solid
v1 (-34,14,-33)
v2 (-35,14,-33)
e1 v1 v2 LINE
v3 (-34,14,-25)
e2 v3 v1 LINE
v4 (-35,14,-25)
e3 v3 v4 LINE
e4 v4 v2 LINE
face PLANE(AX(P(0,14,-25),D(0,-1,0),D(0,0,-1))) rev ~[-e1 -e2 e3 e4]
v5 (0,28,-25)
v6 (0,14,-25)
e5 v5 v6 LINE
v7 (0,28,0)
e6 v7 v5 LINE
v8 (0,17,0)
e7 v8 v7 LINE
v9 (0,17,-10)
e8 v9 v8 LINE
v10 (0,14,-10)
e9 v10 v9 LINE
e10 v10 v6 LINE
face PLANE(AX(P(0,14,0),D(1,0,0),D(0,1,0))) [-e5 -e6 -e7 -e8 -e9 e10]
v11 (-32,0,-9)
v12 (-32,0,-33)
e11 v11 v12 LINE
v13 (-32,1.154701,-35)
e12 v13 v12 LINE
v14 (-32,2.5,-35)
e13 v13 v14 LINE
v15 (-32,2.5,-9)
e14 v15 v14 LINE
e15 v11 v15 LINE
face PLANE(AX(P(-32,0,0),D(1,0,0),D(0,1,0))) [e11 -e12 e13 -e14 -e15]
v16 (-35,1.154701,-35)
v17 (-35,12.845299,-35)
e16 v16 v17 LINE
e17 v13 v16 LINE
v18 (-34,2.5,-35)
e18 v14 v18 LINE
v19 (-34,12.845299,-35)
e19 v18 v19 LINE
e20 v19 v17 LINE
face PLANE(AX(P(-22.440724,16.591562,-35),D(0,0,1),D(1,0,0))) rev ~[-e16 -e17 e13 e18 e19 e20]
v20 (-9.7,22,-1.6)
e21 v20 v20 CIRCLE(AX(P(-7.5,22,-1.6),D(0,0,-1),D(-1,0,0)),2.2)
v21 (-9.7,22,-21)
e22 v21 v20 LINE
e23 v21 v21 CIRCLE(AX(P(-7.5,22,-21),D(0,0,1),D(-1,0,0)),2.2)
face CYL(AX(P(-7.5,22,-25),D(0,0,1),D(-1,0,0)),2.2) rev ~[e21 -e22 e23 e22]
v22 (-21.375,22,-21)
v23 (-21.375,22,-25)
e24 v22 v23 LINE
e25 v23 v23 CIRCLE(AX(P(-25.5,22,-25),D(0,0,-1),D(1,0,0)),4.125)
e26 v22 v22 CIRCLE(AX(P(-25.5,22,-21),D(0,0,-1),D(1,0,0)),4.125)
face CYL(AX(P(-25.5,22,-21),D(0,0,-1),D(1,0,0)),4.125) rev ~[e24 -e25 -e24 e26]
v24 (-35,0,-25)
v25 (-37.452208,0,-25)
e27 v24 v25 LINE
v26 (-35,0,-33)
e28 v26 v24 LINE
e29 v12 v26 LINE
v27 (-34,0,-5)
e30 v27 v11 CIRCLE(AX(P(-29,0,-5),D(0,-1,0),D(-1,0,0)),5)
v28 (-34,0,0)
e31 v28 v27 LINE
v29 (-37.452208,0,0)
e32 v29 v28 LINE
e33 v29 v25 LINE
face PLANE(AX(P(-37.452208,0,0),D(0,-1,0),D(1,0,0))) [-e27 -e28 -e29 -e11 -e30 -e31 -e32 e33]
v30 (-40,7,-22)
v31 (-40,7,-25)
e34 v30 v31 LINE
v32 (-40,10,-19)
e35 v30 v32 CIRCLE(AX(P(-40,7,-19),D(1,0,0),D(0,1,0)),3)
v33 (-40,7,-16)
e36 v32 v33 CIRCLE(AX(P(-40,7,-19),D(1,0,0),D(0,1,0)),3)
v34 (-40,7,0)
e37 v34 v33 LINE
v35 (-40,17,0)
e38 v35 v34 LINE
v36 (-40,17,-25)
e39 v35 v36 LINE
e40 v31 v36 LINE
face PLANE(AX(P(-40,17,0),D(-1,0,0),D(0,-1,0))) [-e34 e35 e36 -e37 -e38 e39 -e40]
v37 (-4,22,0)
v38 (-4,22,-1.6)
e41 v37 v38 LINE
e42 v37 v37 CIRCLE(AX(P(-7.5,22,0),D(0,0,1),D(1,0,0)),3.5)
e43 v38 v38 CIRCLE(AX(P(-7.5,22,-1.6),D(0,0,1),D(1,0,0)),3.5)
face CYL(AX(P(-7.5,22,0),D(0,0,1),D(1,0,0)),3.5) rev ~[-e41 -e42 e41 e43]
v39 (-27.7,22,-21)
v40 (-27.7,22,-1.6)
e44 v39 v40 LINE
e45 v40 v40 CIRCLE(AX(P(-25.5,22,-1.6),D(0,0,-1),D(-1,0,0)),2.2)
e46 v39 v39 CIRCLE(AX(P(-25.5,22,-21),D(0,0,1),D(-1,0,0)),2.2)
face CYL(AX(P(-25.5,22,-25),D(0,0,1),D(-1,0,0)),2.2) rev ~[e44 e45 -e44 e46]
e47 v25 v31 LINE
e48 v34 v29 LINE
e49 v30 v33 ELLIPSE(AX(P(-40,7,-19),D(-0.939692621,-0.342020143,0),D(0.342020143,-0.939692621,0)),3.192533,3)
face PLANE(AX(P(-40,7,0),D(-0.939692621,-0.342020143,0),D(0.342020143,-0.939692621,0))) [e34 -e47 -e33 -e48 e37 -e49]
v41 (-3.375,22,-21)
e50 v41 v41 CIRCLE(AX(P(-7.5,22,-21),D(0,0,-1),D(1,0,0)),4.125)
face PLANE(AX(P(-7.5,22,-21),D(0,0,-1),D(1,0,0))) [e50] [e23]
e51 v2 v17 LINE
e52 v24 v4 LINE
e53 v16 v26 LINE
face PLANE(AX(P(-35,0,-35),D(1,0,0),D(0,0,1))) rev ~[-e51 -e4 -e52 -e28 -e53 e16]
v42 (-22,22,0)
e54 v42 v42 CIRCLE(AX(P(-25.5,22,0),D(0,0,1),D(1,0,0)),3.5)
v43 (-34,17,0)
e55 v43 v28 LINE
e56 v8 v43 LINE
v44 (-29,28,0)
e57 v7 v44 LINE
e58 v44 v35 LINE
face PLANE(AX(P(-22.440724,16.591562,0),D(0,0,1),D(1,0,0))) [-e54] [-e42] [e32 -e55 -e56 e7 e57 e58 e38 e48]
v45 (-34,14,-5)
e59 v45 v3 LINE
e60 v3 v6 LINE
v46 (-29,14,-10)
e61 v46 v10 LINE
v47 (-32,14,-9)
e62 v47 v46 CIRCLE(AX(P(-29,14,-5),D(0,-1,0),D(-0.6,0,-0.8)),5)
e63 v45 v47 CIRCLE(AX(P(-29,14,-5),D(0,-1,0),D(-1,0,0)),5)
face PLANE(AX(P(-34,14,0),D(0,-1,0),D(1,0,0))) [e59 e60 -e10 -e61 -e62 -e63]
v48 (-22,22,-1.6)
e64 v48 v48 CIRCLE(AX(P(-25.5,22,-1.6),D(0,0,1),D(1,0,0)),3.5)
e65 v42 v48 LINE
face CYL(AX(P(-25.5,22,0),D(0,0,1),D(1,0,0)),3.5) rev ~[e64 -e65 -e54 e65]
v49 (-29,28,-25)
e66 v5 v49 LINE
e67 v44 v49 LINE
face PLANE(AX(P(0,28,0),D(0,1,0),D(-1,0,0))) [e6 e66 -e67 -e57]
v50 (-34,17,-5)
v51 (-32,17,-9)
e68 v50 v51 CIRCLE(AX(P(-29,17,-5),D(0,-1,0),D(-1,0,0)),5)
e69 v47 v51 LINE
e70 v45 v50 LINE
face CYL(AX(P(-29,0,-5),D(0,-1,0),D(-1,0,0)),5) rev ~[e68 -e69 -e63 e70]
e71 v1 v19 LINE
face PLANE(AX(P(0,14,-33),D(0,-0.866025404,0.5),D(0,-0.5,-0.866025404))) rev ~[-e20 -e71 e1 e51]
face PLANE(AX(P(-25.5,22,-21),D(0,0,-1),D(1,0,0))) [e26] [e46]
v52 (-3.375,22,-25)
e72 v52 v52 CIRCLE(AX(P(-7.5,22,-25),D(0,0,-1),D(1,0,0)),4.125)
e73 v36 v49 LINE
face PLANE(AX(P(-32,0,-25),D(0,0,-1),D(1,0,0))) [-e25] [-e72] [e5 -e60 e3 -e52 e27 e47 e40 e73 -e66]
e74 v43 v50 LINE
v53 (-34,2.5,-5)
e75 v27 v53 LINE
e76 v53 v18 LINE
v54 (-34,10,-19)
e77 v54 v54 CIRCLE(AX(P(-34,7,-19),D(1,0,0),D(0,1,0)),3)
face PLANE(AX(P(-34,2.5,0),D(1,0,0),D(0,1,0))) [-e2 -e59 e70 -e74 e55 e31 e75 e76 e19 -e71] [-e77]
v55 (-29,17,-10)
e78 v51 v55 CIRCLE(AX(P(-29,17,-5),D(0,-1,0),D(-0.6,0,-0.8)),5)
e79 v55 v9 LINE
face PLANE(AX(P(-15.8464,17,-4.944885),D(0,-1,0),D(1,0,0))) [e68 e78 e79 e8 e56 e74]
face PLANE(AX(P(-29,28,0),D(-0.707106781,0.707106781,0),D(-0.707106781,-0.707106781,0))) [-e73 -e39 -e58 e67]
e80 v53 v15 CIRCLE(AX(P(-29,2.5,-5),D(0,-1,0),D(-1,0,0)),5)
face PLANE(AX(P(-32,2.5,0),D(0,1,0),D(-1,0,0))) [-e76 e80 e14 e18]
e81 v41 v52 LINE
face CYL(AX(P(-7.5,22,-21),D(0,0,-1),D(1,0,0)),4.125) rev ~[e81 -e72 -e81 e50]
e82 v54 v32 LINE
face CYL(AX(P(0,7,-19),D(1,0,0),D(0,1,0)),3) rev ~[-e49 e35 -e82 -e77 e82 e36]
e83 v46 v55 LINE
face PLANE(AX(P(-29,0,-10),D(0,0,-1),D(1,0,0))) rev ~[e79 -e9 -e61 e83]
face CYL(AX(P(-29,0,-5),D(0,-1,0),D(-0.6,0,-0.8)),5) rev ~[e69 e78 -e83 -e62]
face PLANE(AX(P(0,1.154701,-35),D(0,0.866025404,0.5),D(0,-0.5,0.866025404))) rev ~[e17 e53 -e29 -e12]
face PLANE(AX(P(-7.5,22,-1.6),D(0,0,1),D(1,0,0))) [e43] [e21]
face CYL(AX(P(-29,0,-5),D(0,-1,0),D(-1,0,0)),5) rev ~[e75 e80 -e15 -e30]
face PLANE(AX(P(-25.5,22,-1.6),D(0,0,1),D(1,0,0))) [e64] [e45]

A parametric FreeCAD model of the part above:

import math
import FreeCAD as App
import Part
import Sketcher
Q = App.Units.Quantity

doc = App.newDocument("Part")
body = doc.addObject("PartDesign::Body", "Body")

sketch1 = body.newObject("Sketcher::SketchObject", "Sketch")
sketch1.AttachmentSupport = (doc.getObject("XY_Plane"), [""])
sketch1.MapMode = "FlatFace"
sketch1.addGeometry(Part.LineSegment(App.Vector(-34, 14, 0), App.Vector(0, 14, 0)), False)
sketch1.addGeometry(Part.LineSegment(App.Vector(0, 14, 0), App.Vector(0, 28, 0)), False)
sketch1.addGeometry(Part.LineSegment(App.Vector(0, 28, 0), App.Vector(-29, 28, 0)), False)
sketch1.addGeometry(Part.LineSegment(App.Vector(-29, 28, 0), App.Vector(-40, 17, 0)), False)
sketch1.addGeometry(Part.LineSegment(App.Vector(-40, 17, 0), App.Vector(-40, 7, 0)), False)
sketch1.addGeometry(Part.LineSegment(App.Vector(-40, 7, 0), App.Vector(-37.5, 0, 0)), False)
sketch1.addGeometry(Part.LineSegment(App.Vector(-37.5, 0, 0), App.Vector(-32, 0, 0)), False)
sketch1.addGeometry(Part.LineSegment(App.Vector(-32, 0, 0), App.Vector(-32, 2.5, 0)), False)
sketch1.addGeometry(Part.LineSegment(App.Vector(-32, 2.5, 0), App.Vector(-34, 2.5, 0)), False)
sketch1.addGeometry(Part.LineSegment(App.Vector(-34, 2.5, 0), App.Vector(-34, 14, 0)), False)
sketch1.addConstraint(Sketcher.Constraint("Coincident", 0, 2, 1, 1))
sketch1.addConstraint(Sketcher.Constraint("Coincident", 1, 2, 2, 1))
sketch1.addConstraint(Sketcher.Constraint("Coincident", 2, 2, 3, 1))
sketch1.addConstraint(Sketcher.Constraint("Coincident", 3, 2, 4, 1))
sketch1.addConstraint(Sketcher.Constraint("Coincident", 4, 2, 5, 1))
sketch1.addConstraint(Sketcher.Constraint("Coincident", 5, 2, 6, 1))
sketch1.addConstraint(Sketcher.Constraint("Coincident", 6, 2, 7, 1))
sketch1.addConstraint(Sketcher.Constraint("Coincident", 7, 2, 8, 1))
sketch1.addConstraint(Sketcher.Constraint("Coincident", 8, 2, 9, 1))
sketch1.addConstraint(Sketcher.Constraint("Coincident", 9, 2, 0, 1))
sketch1.addConstraint(Sketcher.Constraint("Horizontal", 0))
sketch1.addConstraint(Sketcher.Constraint("Vertical", 1))
sketch1.addConstraint(Sketcher.Constraint("Horizontal", 2))
sketch1.addConstraint(Sketcher.Constraint("Vertical", 4))
sketch1.addConstraint(Sketcher.Constraint("Horizontal", 6))
sketch1.addConstraint(Sketcher.Constraint("Vertical", 7))
sketch1.addConstraint(Sketcher.Constraint("Horizontal", 8))
sketch1.addConstraint(Sketcher.Constraint("Vertical", 9))
sketch1.addConstraint(Sketcher.Constraint("PointOnObject", 0, 2, -2))
sketch1.addConstraint(Sketcher.Constraint("PointOnObject", 5, 2, -1))
sketch1.addConstraint(Sketcher.Constraint("DistanceX", 0, 1, 0, 2, 34.0))
sketch1.addConstraint(Sketcher.Constraint("DistanceX", 2, 2, 2, 1, 29.0))
sketch1.addConstraint(Sketcher.Constraint("DistanceX", 8, 2, 8, 1, 2.0))
sketch1.addConstraint(Sketcher.Constraint("DistanceY", 1, 1, 1, 2, 14.0))
sketch1.addConstraint(Sketcher.Constraint("DistanceY", 4, 2, 4, 1, 10.0))
sketch1.addConstraint(Sketcher.Constraint("Angle", 3, Q("-135 deg")))
sketch1.addConstraint(Sketcher.Constraint("Angle", 5, Q("-70 deg")))
sketch1.addConstraint(Sketcher.Constraint("DistanceY", 7, 1, 7, 2, 2.5))
sketch1.addConstraint(Sketcher.Constraint("DistanceY", 9, 1, 9, 2, 11.5))
sketch1.addConstraint(Sketcher.Constraint("DistanceX", 3, 2, -1, 1, 40.0))
pad1 = body.newObject("PartDesign::Pad", "Pad")
pad1.Profile = sketch1
pad1.Length = 35
pad1.Reversed = True

sketch2 = body.newObject("Sketcher::SketchObject", "Sketch001")
sketch2.AttachmentSupport = (doc.getObject("XZ_Plane"), [""])
sketch2.MapMode = "FlatFace"
sketch2.addGeometry(Part.LineSegment(App.Vector(0, 0, 0), App.Vector(-34, 0, 0)), False)
sketch2.addGeometry(Part.LineSegment(App.Vector(-34, 0, 0), App.Vector(-34, -5, 0)), False)
sketch2.addGeometry(Part.ArcOfCircle(Part.Circle(App.Vector(-29, -5, 0), App.Vector(0, 0, 1), 5), math.radians(180), math.radians(233)), False)
sketch2.addGeometry(Part.ArcOfCircle(Part.Circle(App.Vector(-29, -5, 0), App.Vector(0, 0, 1), 5), math.radians(-127), math.radians(-90)), False)
sketch2.addGeometry(Part.LineSegment(App.Vector(-29, -10, 0), App.Vector(0, -10, 0)), False)
sketch2.addGeometry(Part.LineSegment(App.Vector(0, -10, 0), App.Vector(0, 0, 0)), False)
sketch2.addConstraint(Sketcher.Constraint("Coincident", 0, 2, 1, 1))
sketch2.addConstraint(Sketcher.Constraint("Tangent", 1, 2, 2, 1))
sketch2.addConstraint(Sketcher.Constraint("Tangent", 2, 2, 3, 1))
sketch2.addConstraint(Sketcher.Constraint("Tangent", 3, 2, 4, 1))
sketch2.addConstraint(Sketcher.Constraint("Coincident", 4, 2, 5, 1))
sketch2.addConstraint(Sketcher.Constraint("Coincident", 5, 2, 0, 1))
sketch2.addConstraint(Sketcher.Constraint("Horizontal", 0))
sketch2.addConstraint(Sketcher.Constraint("Vertical", 1))
sketch2.addConstraint(Sketcher.Constraint("Horizontal", 4))
sketch2.addConstraint(Sketcher.Constraint("Vertical", 5))
sketch2.addConstraint(Sketcher.Constraint("Coincident", 5, 2, -1, 1))
sketch2.addConstraint(Sketcher.Constraint("Equal", 2, 3))
sketch2.addConstraint(Sketcher.Constraint("Radius", 2, 5.0))
sketch2.addConstraint(Sketcher.Constraint("DistanceX", 0, 2, 0, 1, 34.0))
sketch2.addConstraint(Sketcher.Constraint("DistanceY", 1, 2, 1, 1, 5.0))
sketch2.addConstraint(Sketcher.Constraint("DistanceX", 2, 2, -1, 1, 32.0))
pocket1 = body.newObject("PartDesign::Pocket", "Pocket")
pocket1.Profile = sketch2
pocket1.Length = 17

sketch3 = body.newObject("Sketcher::SketchObject", "Sketch002")
sketch3.AttachmentSupport = (doc.getObject("XZ_Plane"), [""])
sketch3.MapMode = "FlatFace"
sketch3.addGeometry(Part.LineSegment(App.Vector(-35, -35, 0), App.Vector(-35, -25, 0)), False)
sketch3.addGeometry(Part.LineSegment(App.Vector(-35, -25, 0), App.Vector(-40, -25, 0)), False)
sketch3.addGeometry(Part.LineSegment(App.Vector(-40, -25, 0), App.Vector(-40, -35, 0)), False)
sketch3.addGeometry(Part.LineSegment(App.Vector(-40, -35, 0), App.Vector(-35, -35, 0)), False)
sketch3.addGeometry(Part.LineSegment(App.Vector(-32, -25, 0), App.Vector(-32, -35, 0)), False)
sketch3.addGeometry(Part.LineSegment(App.Vector(-32, -35, 0), App.Vector(0, -35, 0)), False)
sketch3.addGeometry(Part.LineSegment(App.Vector(0, -35, 0), App.Vector(0, -25, 0)), False)
sketch3.addGeometry(Part.LineSegment(App.Vector(0, -25, 0), App.Vector(-32, -25, 0)), False)
sketch3.addConstraint(Sketcher.Constraint("Coincident", 0, 2, 1, 1))
sketch3.addConstraint(Sketcher.Constraint("Coincident", 1, 2, 2, 1))
sketch3.addConstraint(Sketcher.Constraint("Coincident", 2, 2, 3, 1))
sketch3.addConstraint(Sketcher.Constraint("Coincident", 3, 2, 0, 1))
sketch3.addConstraint(Sketcher.Constraint("Coincident", 4, 2, 5, 1))
sketch3.addConstraint(Sketcher.Constraint("Coincident", 5, 2, 6, 1))
sketch3.addConstraint(Sketcher.Constraint("Coincident", 6, 2, 7, 1))
sketch3.addConstraint(Sketcher.Constraint("Coincident", 7, 2, 4, 1))
sketch3.addConstraint(Sketcher.Constraint("Vertical", 0))
sketch3.addConstraint(Sketcher.Constraint("Horizontal", 1))
sketch3.addConstraint(Sketcher.Constraint("Vertical", 2))
sketch3.addConstraint(Sketcher.Constraint("Horizontal", 3))
sketch3.addConstraint(Sketcher.Constraint("Vertical", 4))
sketch3.addConstraint(Sketcher.Constraint("Horizontal", 5))
sketch3.addConstraint(Sketcher.Constraint("Vertical", 6))
sketch3.addConstraint(Sketcher.Constraint("Horizontal", 7))
sketch3.addConstraint(Sketcher.Constraint("PointOnObject", 5, 2, -2))
sketch3.addConstraint(Sketcher.Constraint("Horizontal", 3, 2, 4, 2))
sketch3.addConstraint(Sketcher.Constraint("Horizontal", 1, 2, 6, 2))
sketch3.addConstraint(Sketcher.Constraint("DistanceX", 1, 2, 1, 1, 5.0))
sketch3.addConstraint(Sketcher.Constraint("DistanceX", 5, 1, 5, 2, 32.0))
sketch3.addConstraint(Sketcher.Constraint("DistanceY", 0, 1, 0, 2, 10.0))
sketch3.addConstraint(Sketcher.Constraint("DistanceX", 0, 2, -1, 1, 35.0))
sketch3.addConstraint(Sketcher.Constraint("DistanceY", 0, 2, -1, 1, 25.0))
pocket2 = body.newObject("PartDesign::Pocket", "Pocket001")
pocket2.Profile = sketch3
pocket2.Type = "ThroughAll"

sketch4 = body.newObject("Sketcher::SketchObject", "Sketch003")
sketch4.AttachmentSupport = (doc.getObject("XZ_Plane"), [""])
sketch4.MapMode = "FlatFace"
sketch4.AttachmentOffset = App.Placement(App.Vector(0, 0, -28), App.Rotation())
sketch4.addGeometry(Part.LineSegment(App.Vector(-32, -25, 0), App.Vector(-32, -35, 0)), False)
sketch4.addGeometry(Part.LineSegment(App.Vector(-32, -35, 0), App.Vector(-34, -35, 0)), False)
sketch4.addGeometry(Part.LineSegment(App.Vector(-34, -35, 0), App.Vector(-34, -25, 0)), False)
sketch4.addGeometry(Part.LineSegment(App.Vector(-34, -25, 0), App.Vector(-32, -25, 0)), False)
sketch4.addConstraint(Sketcher.Constraint("Coincident", 0, 2, 1, 1))
sketch4.addConstraint(Sketcher.Constraint("Coincident", 1, 2, 2, 1))
sketch4.addConstraint(Sketcher.Constraint("Coincident", 2, 2, 3, 1))
sketch4.addConstraint(Sketcher.Constraint("Coincident", 3, 2, 0, 1))
sketch4.addConstraint(Sketcher.Constraint("Vertical", 0))
sketch4.addConstraint(Sketcher.Constraint("Horizontal", 1))
sketch4.addConstraint(Sketcher.Constraint("Vertical", 2))
sketch4.addConstraint(Sketcher.Constraint("Horizontal", 3))
sketch4.addConstraint(Sketcher.Constraint("DistanceX", 1, 2, 1, 1, 2.0))
sketch4.addConstraint(Sketcher.Constraint("DistanceY", 0, 2, 0, 1, 10.0))
sketch4.addConstraint(Sketcher.Constraint("DistanceX", 0, 2, -1, 1, 32.0))
sketch4.addConstraint(Sketcher.Constraint("DistanceY", 0, 2, -1, 1, 35.0))
pocket3 = body.newObject("PartDesign::Pocket", "Pocket002")
pocket3.Profile = sketch4
pocket3.Length = 14
pocket3.Reversed = True

sketch5 = body.newObject("Sketcher::SketchObject", "Sketch004")
sketch5.AttachmentSupport = (doc.getObject("YZ_Plane"), [""])
sketch5.MapMode = "FlatFace"
sketch5.addGeometry(Part.LineSegment(App.Vector(23, -35, 0), App.Vector(23, -25, 0)), False)
sketch5.addGeometry(Part.LineSegment(App.Vector(23, -25, 0), App.Vector(14, -25, 0)), False)
sketch5.addGeometry(Part.LineSegment(App.Vector(14, -25, 0), App.Vector(14, -33, 0)), False)
sketch5.addGeometry(Part.LineSegment(App.Vector(14, -33, 0), App.Vector(12.8, -35, 0)), False)
sketch5.addGeometry(Part.LineSegment(App.Vector(12.8, -35, 0), App.Vector(23, -35, 0)), False)
sketch5.addGeometry(Part.Circle(App.Vector(7, -19, 0), App.Vector(0, 0, 1), 3), False)
sketch5.addGeometry(Part.LineSegment(App.Vector(1.2, -35, 0), App.Vector(0, -33, 0)), False)
sketch5.addGeometry(Part.LineSegment(App.Vector(0, -33, 0), App.Vector(0, -35, 0)), False)
sketch5.addGeometry(Part.LineSegment(App.Vector(0, -35, 0), App.Vector(1.2, -35, 0)), False)
sketch5.addConstraint(Sketcher.Constraint("Coincident", 0, 2, 1, 1))
sketch5.addConstraint(Sketcher.Constraint("Coincident", 1, 2, 2, 1))
sketch5.addConstraint(Sketcher.Constraint("Coincident", 2, 2, 3, 1))
sketch5.addConstraint(Sketcher.Constraint("Coincident", 3, 2, 4, 1))
sketch5.addConstraint(Sketcher.Constraint("Coincident", 4, 2, 0, 1))
sketch5.addConstraint(Sketcher.Constraint("Coincident", 6, 2, 7, 1))
sketch5.addConstraint(Sketcher.Constraint("Coincident", 7, 2, 8, 1))
sketch5.addConstraint(Sketcher.Constraint("Coincident", 8, 2, 6, 1))
sketch5.addConstraint(Sketcher.Constraint("Vertical", 0))
sketch5.addConstraint(Sketcher.Constraint("Horizontal", 1))
sketch5.addConstraint(Sketcher.Constraint("Vertical", 2))
sketch5.addConstraint(Sketcher.Constraint("Horizontal", 4))
sketch5.addConstraint(Sketcher.Constraint("Vertical", 7))
sketch5.addConstraint(Sketcher.Constraint("Horizontal", 8))
sketch5.addConstraint(Sketcher.Constraint("PointOnObject", 6, 2, -2))
sketch5.addConstraint(Sketcher.Constraint("Horizontal", 2, 2, 6, 2))
sketch5.addConstraint(Sketcher.Constraint("Horizontal", 4, 2, 7, 2))
sketch5.addConstraint(Sketcher.Constraint("Equal", 3, 6))
sketch5.addConstraint(Sketcher.Constraint("Diameter", 5, 6.0))
sketch5.addConstraint(Sketcher.Constraint("DistanceX", 1, 2, 1, 1, 9.0))
sketch5.addConstraint(Sketcher.Constraint("DistanceY", 0, 1, 0, 2, 10.0))
sketch5.addConstraint(Sketcher.Constraint("DistanceY", 2, 2, 2, 1, 8.0))
sketch5.addConstraint(Sketcher.Constraint("Angle", 3, Q("-120 deg")))
sketch5.addConstraint(Sketcher.Constraint("DistanceX", -1, 1, 5, 3, 7.0))
sketch5.addConstraint(Sketcher.Constraint("DistanceY", 5, 3, -1, 1, 19.0))
sketch5.addConstraint(Sketcher.Constraint("DistanceX", -1, 1, 0, 2, 23.0))
sketch5.addConstraint(Sketcher.Constraint("DistanceY", 0, 2, -1, 1, 25.0))
pocket4 = body.newObject("PartDesign::Pocket", "Pocket003")
pocket4.Profile = sketch5
pocket4.Type = "ThroughAll"

sketch6 = body.newObject("Sketcher::SketchObject", "Sketch005")
sketch6.AttachmentSupport = (doc.getObject("XY_Plane"), [""])
sketch6.MapMode = "FlatFace"
sketch6.AttachmentOffset = App.Placement(App.Vector(0, 0, -25), App.Rotation())
sketch6.addGeometry(Part.Circle(App.Vector(-25.5, 22, 0), App.Vector(0, 0, 1), 2.2), False)
sketch6.addGeometry(Part.Circle(App.Vector(-7.5, 22, 0), App.Vector(0, 0, 1), 2.2), False)
sketch6.addConstraint(Sketcher.Constraint("Equal", 0, 1))
sketch6.addConstraint(Sketcher.Constraint("Horizontal", 0, 3, 1, 3))
sketch6.addConstraint(Sketcher.Constraint("Diameter", 0, 4.4))
sketch6.addConstraint(Sketcher.Constraint("DistanceY", -1, 1, 0, 3, 22.0))
sketch6.addConstraint(Sketcher.Constraint("DistanceX", 0, 3, 1, 3, 18.0))
sketch6.addConstraint(Sketcher.Constraint("DistanceX", 0, 3, -1, 1, 25.5))
doc.recompute()
hole = body.newObject("PartDesign::Hole", "Hole")
hole.Profile = sketch6
hole.ThreadType = "None"
hole.Diameter = 4.4
hole.DepthType = "ThroughAll"
hole.HoleCutType = "Counterbore"
hole.HoleCutDiameter = 8.25
hole.HoleCutDepth = 4
hole.Reversed = True

sketch7 = body.newObject("Sketcher::SketchObject", "Sketch006")
sketch7.AttachmentSupport = (doc.getObject("XY_Plane"), [""])
sketch7.MapMode = "FlatFace"
sketch7.addGeometry(Part.Circle(App.Vector(-25.5, 22, 0), App.Vector(0, 0, 1), 3.5), False)
sketch7.addGeometry(Part.Circle(App.Vector(-25.5, 22, 0), App.Vector(0, 0, 1), 2.2), False)
sketch7.addGeometry(Part.Circle(App.Vector(-7.5, 22, 0), App.Vector(0, 0, 1), 3.5), False)
sketch7.addGeometry(Part.Circle(App.Vector(-7.5, 22, 0), App.Vector(0, 0, 1), 2.2), False)
sketch7.addConstraint(Sketcher.Constraint("Coincident", 1, 3, 0, 3))
sketch7.addConstraint(Sketcher.Constraint("Coincident", 3, 3, 2, 3))
sketch7.addConstraint(Sketcher.Constraint("Equal", 0, 2))
sketch7.addConstraint(Sketcher.Constraint("Equal", 1, 3))
sketch7.addConstraint(Sketcher.Constraint("Horizontal", 1, 3, 2, 3))
sketch7.addConstraint(Sketcher.Constraint("Diameter", 0, 7.0))
sketch7.addConstraint(Sketcher.Constraint("Diameter", 1, 4.4))
sketch7.addConstraint(Sketcher.Constraint("DistanceY", -1, 1, 0, 3, 22.0))
sketch7.addConstraint(Sketcher.Constraint("DistanceX", 0, 3, 2, 3, 18.0))
sketch7.addConstraint(Sketcher.Constraint("DistanceX", 0, 3, -1, 1, 25.5))
pocket5 = body.newObject("PartDesign::Pocket", "Pocket004")
pocket5.Profile = sketch7
pocket5.Length = 1.6

doc.recompute()
